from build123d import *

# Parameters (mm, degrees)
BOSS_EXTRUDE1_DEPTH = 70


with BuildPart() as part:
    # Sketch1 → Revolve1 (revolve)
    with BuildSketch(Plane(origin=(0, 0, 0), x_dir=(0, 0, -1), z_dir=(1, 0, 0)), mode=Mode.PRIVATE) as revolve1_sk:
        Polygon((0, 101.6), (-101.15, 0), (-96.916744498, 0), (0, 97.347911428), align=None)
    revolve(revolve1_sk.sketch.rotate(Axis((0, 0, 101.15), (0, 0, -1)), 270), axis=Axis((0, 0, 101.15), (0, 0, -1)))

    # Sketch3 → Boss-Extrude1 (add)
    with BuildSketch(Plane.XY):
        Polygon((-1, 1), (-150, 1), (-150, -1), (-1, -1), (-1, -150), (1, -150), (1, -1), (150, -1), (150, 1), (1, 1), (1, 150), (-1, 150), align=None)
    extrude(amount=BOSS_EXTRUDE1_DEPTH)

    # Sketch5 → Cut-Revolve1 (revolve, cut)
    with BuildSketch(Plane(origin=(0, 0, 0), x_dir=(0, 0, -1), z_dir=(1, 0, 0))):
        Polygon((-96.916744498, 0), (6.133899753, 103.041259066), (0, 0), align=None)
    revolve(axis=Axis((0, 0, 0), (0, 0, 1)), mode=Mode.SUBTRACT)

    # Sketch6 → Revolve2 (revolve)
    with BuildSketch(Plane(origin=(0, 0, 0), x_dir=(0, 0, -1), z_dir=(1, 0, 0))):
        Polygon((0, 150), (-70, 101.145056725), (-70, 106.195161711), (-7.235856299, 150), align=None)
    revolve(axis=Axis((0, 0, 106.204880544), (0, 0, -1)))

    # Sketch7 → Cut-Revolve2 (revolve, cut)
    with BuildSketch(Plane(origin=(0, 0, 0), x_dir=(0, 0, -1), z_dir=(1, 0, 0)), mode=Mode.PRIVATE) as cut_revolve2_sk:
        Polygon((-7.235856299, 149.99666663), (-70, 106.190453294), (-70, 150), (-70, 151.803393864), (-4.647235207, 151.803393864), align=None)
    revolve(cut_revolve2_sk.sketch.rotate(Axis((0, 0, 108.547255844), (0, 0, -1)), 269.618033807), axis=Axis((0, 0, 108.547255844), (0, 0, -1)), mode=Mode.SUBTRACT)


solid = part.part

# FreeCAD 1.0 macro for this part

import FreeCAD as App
import Part
import Sketcher
Q = App.Units.Quantity


def add_polygon(sketch, points):
    """Adds a closed chain of lines whose ends are joined by coincident constraints."""
    first, n = sketch.GeometryCount, len(points)
    for a, b in zip(points, points[1:] + points[:1]):
        sketch.addGeometry(Part.LineSegment(App.Vector(*a, 0), App.Vector(*b, 0)), False)
    for i in range(n):
        sketch.addConstraint(Sketcher.Constraint("Coincident", first + i, 2, first + (i + 1) % n, 1))

doc = App.newDocument("Part")
params = doc.addObject("Spreadsheet::Sheet", "Params")
for row, (alias, value) in enumerate([
    ("revolution_angle", "360 deg"),
    ("sketch2_width", "149 mm"),
    ("sketch2_width2", "2 mm"),
    ("pad1_length", "70 mm"),
    ("groove_angle", "360 deg"),
    ("revolution2_angle", "360 deg"),
    ("groove2_angle", "360 deg"),
], start=1):
    params.set(f"A{row}", alias)
    params.set(f"B{row}", "=" + value)
    params.setAlias(f"B{row}", alias)

body = doc.addObject("PartDesign::Body", "Body")

sketch1 = body.newObject("Sketcher::SketchObject", "Sketch")
sketch1.AttachmentSupport = (doc.getObject("YZ_Plane"), [""])
sketch1.MapMode = "FlatFace"
add_polygon(sketch1, [(101.6, 0), (0, 101.2), (0, 96.9), (97.3, 0)])
sketch1.addConstraint([
    Sketcher.Constraint("Vertical", 1),
    Sketcher.Constraint("Horizontal", 3),
    Sketcher.Constraint("PointOnObject", 0, 2, -2),
    Sketcher.Constraint("PointOnObject", 2, 2, -1),
    Sketcher.Constraint("Parallel", 0, 2),
    Sketcher.Constraint("DistanceX", -1, 1, 3, 2, Q("101.6 mm")),
    Sketcher.Constraint("DistanceY", -1, 1, 0, 2, Q("101.15 mm")),
    Sketcher.Constraint("DistanceX", 3, 1, 3, 2, Q("4.252089 mm")),
])
revolution = body.newObject("PartDesign::Revolution", "Revolution")
revolution.Profile = sketch1
revolution.ReferenceAxis = (sketch1, ["V_Axis"])
revolution.setExpression("Angle", "Params.revolution_angle")

sketch2 = body.newObject("Sketcher::SketchObject", "Sketch001")
sketch2.AttachmentSupport = (doc.getObject("XY_Plane"), [""])
sketch2.MapMode = "FlatFace"
add_polygon(sketch2, [(-1, 1), (-150, 1), (-150, -1), (-1, -1), (-1, -150), (1, -150), (1, -1), (150, -1), (150, 1), (1, 1), (1, 150), (-1, 150)])
sketch2.addConstraint([
    Sketcher.Constraint("Horizontal", 0),
    Sketcher.Constraint("Vertical", 1),
    Sketcher.Constraint("Horizontal", 2),
    Sketcher.Constraint("Vertical", 3),
    Sketcher.Constraint("Horizontal", 4),
    Sketcher.Constraint("Vertical", 5),
    Sketcher.Constraint("Horizontal", 6),
    Sketcher.Constraint("Vertical", 7),
    Sketcher.Constraint("Horizontal", 8),
    Sketcher.Constraint("Vertical", 9),
    Sketcher.Constraint("Horizontal", 10),
    Sketcher.Constraint("Vertical", 11),
    Sketcher.Constraint("Symmetric", 0, 2, 6, 2, -1, 1),
    Sketcher.Constraint("Symmetric", 2, 2, 8, 2, -1, 1),
    Sketcher.Constraint("Symmetric", 4, 2, 10, 2, -1, 1),
    Sketcher.Constraint("Symmetric", 2, 2, 5, 2, -2),
    Sketcher.Constraint("Equal", 10, 1),
    Sketcher.Constraint("Equal", 8, 3),
    Sketcher.Constraint("DistanceX", 0, 2, 0, 1, Q("149 mm")),
    Sketcher.Constraint("DistanceX", 4, 1, 4, 2, Q("2 mm")),
])
sketch2.setExpression("Constraints[30]", "Params.sketch2_width")
sketch2.setExpression("Constraints[31]", "Params.sketch2_width2")
pad1 = body.newObject("PartDesign::Pad", "Pad")
pad1.Profile = sketch2
pad1.setExpression("Length", "Params.pad1_length")

sketch3 = body.newObject("Sketcher::SketchObject", "Sketch002")
sketch3.AttachmentSupport = (doc.getObject("YZ_Plane"), [""])
sketch3.MapMode = "FlatFace"
add_polygon(sketch3, [(103, -6), (0, 97), (0, 0)])
sketch3.addConstraint([
    Sketcher.Constraint("Vertical", 1),
    Sketcher.Constraint("Coincident", 1, 2, -1, 1),
    Sketcher.Constraint("DistanceY", 2, 2, -1, 1, Q("6.1339 mm")),
    Sketcher.Constraint("Distance", 2, Q("103.223669 mm")),
    Sketcher.Constraint("DistanceY", 1, 2, 1, 1, Q("96.916744 mm")),
])
groove = body.newObject("PartDesign::Groove", "Groove")
groove.Profile = sketch3
groove.ReferenceAxis = (sketch3, ["V_Axis"])
groove.setExpression("Angle", "Params.groove_angle")

sketch4 = body.newObject("Sketcher::SketchObject", "Sketch003")
sketch4.AttachmentSupport = (doc.getObject("YZ_Plane"), [""])
sketch4.MapMode = "FlatFace"
add_polygon(sketch4, [(101, 70), (150, 0), (150, 7), (106, 70)])
sketch4.addConstraint([
    Sketcher.Constraint("Vertical", 1),
    Sketcher.Constraint("Horizontal", 3),
    Sketcher.Constraint("PointOnObject", 0, 2, -1),
    Sketcher.Constraint("Parallel", 0, 2),
    Sketcher.Constraint("DistanceX", -1, 1, 0, 2, Q("150 mm")),
    Sketcher.Constraint("DistanceY", -1, 1, 2, 2, Q("70 mm")),
    Sketcher.Constraint("Distance", 2, Q("76.538889 mm")),
    Sketcher.Constraint("DistanceX", 3, 2, 3, 1, Q("5.050105 mm")),
])
revolution2 = body.newObject("PartDesign::Revolution", "Revolution001")
revolution2.Profile = sketch4
revolution2.ReferenceAxis = (sketch4, ["V_Axis"])
revolution2.setExpression("Angle", "Params.revolution2_angle")

sketch5 = body.newObject("Sketcher::SketchObject", "Sketch004")
sketch5.AttachmentSupport = (doc.getObject("YZ_Plane"), [""])
sketch5.MapMode = "FlatFace"
add_polygon(sketch5, [(106.2, 70), (150, 7.2), (151.8, 4.6), (151.8, 70)])
sketch5.addConstraint([
    Sketcher.Constraint("Vertical", 2),
    Sketcher.Constraint("Horizontal", 3),
    Sketcher.Constraint("Parallel", 0, 1),
    Sketcher.Constraint("DistanceY", -1, 1, 2, 2, Q("70 mm")),
    Sketcher.Constraint("DistanceX", 3, 2, 3, 1, Q("45.612941 mm")),
    Sketcher.Constraint("DistanceY", 2, 1, 2, 2, Q("65.352765 mm")),
    Sketcher.Constraint("DistanceY", 1, 2, 0, 2, Q("2.588621 mm")),
    Sketcher.Constraint("DistanceX", -1, 1, 0, 2, Q("149.996667 mm")),
])
groove2 = body.newObject("PartDesign::Groove", "Groove001")
groove2.Profile = sketch5
groove2.ReferenceAxis = (sketch5, ["V_Axis"])
groove2.setExpression("Angle", "Params.groove2_angle")

doc.recompute()
